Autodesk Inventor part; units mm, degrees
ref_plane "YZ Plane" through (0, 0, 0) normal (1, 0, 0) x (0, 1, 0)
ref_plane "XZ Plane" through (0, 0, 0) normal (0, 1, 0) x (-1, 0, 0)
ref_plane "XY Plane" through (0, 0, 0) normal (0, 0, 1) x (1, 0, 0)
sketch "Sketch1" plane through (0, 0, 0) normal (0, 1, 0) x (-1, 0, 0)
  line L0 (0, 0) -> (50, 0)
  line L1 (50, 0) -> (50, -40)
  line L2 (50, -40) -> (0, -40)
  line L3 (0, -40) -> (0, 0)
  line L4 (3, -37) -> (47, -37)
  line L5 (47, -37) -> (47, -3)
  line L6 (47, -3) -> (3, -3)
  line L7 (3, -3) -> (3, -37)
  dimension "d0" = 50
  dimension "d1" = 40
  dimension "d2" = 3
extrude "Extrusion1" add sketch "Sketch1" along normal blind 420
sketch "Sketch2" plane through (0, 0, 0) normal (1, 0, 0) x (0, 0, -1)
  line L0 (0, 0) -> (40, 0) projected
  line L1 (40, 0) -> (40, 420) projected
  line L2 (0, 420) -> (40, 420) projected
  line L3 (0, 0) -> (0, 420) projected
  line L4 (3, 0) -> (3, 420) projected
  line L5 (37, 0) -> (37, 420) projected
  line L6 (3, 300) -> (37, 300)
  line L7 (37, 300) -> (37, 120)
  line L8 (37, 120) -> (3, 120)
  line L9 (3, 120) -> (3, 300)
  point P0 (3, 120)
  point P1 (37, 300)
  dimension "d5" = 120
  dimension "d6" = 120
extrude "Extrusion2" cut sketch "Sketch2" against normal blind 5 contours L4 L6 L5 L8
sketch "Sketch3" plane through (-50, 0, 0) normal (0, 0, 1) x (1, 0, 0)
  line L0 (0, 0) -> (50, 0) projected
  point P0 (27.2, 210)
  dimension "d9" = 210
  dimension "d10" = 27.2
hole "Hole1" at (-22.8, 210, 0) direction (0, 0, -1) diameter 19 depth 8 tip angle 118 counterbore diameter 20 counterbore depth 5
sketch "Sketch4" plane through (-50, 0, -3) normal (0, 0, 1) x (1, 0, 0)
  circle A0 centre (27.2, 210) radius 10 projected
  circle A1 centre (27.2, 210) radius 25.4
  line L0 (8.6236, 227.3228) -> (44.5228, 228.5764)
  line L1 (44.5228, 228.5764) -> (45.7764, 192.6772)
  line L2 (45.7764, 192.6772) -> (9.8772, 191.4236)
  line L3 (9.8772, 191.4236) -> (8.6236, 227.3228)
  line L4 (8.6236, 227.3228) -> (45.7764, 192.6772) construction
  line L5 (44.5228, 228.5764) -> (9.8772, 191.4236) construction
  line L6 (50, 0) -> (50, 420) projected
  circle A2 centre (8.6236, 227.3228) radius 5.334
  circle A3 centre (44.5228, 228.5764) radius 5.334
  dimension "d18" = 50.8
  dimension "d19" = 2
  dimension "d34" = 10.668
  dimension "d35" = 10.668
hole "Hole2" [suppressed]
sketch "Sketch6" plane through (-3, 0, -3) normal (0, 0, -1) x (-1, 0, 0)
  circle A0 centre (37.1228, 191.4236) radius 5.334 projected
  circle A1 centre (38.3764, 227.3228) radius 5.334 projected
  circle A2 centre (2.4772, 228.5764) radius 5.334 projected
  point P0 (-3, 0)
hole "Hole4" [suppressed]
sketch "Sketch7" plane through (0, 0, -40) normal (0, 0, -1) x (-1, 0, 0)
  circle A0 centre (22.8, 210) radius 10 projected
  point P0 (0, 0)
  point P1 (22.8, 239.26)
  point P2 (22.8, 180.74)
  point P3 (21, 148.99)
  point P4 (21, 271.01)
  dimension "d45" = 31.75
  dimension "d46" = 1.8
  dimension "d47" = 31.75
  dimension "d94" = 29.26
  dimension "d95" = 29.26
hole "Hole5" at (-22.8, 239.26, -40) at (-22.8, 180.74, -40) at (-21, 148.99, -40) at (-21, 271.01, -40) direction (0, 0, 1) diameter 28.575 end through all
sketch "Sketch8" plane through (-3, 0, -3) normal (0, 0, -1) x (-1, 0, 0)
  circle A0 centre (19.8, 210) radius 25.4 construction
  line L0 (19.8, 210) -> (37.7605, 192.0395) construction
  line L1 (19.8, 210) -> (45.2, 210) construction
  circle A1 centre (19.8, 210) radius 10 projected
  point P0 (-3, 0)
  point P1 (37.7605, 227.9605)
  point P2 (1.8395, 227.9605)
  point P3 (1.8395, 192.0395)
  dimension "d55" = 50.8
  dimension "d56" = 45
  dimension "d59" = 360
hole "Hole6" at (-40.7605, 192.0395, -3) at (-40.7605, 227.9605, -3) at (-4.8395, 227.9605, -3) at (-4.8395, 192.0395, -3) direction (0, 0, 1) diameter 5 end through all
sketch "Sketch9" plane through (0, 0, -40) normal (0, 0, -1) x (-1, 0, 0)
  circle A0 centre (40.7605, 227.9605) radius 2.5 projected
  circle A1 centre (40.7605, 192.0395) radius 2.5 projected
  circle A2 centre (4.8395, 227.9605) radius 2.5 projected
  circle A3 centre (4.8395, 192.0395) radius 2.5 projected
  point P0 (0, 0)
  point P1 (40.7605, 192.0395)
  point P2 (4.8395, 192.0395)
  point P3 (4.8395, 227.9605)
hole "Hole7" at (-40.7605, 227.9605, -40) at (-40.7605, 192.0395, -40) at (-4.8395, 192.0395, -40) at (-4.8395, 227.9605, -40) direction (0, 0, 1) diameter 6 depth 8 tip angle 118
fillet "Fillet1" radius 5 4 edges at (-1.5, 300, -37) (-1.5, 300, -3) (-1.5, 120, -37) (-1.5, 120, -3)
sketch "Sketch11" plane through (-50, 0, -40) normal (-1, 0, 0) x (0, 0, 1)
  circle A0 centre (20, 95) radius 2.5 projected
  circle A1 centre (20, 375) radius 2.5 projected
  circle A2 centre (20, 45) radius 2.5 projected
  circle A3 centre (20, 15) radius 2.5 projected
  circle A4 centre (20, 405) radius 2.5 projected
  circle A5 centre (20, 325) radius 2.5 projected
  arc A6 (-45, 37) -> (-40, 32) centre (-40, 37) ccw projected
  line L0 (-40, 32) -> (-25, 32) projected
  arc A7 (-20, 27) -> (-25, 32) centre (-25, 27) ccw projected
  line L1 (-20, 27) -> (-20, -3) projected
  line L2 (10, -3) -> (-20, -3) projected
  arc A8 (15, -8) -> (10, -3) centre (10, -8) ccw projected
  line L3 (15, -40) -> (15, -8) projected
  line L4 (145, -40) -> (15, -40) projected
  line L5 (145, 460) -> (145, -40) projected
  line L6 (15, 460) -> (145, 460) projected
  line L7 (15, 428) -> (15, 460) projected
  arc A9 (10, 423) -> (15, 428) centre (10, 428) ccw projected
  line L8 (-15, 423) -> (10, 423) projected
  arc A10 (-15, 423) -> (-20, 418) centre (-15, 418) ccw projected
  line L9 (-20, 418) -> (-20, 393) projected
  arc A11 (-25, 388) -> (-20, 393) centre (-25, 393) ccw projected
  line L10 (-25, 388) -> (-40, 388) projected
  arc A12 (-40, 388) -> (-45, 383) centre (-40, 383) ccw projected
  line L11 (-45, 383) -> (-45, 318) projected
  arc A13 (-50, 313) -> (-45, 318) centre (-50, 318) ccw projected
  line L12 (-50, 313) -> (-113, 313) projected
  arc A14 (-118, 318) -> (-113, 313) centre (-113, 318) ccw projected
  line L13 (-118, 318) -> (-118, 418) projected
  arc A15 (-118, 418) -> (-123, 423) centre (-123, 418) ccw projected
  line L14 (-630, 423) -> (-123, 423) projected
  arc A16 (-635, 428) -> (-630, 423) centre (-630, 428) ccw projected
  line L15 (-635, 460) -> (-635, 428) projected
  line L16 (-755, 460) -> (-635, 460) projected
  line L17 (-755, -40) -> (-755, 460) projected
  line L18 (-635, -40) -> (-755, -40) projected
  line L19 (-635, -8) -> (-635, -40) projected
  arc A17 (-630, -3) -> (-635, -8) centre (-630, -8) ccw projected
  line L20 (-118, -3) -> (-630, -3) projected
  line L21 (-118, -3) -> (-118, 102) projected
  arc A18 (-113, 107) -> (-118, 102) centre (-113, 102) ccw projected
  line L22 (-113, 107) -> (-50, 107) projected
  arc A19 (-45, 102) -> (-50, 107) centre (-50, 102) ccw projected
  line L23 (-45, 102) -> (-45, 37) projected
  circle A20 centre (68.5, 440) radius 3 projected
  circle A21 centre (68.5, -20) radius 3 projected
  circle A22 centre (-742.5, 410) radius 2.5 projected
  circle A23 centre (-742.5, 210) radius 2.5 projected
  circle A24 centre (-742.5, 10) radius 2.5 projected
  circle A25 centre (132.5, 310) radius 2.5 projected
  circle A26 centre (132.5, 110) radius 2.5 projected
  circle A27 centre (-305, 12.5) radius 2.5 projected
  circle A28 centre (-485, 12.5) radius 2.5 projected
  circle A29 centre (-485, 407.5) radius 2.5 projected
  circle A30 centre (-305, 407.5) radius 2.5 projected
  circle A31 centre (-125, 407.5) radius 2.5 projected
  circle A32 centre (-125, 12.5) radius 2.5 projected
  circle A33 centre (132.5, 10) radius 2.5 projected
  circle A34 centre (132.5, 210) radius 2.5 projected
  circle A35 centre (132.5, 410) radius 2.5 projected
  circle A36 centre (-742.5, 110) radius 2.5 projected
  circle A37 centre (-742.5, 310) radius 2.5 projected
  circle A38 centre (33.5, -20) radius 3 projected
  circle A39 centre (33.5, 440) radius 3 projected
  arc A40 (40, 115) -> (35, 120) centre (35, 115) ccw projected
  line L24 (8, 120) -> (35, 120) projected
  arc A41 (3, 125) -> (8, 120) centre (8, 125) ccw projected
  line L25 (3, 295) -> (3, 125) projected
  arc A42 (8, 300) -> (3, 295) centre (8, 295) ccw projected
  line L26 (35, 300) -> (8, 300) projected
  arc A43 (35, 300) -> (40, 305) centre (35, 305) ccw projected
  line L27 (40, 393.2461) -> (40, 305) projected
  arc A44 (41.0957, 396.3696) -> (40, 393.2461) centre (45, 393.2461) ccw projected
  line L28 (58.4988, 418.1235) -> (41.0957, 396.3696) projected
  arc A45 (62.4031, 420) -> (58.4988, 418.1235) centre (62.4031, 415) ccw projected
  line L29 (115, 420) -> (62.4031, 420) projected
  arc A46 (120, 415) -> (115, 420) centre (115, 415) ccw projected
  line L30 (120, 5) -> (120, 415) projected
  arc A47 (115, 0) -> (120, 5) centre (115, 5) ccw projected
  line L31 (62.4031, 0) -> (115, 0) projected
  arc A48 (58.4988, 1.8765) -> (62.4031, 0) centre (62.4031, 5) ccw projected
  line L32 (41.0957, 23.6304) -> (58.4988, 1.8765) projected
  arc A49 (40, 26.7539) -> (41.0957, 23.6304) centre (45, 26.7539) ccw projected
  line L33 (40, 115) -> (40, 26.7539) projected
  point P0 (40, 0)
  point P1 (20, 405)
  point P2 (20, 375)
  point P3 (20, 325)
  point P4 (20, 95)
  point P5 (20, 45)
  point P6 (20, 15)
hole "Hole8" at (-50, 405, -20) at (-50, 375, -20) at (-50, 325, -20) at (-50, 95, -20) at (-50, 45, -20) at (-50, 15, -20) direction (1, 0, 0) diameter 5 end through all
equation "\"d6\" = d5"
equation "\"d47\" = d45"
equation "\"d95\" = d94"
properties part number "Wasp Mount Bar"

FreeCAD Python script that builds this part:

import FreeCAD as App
import Part
import Sketcher
from FreeCAD import Vector
Q = App.Units.Quantity


def edges_at(feature, points):
    """Names of the edges that pass closest to the given points."""
    edges = feature.Shape.Edges
    near = lambda p: min(range(len(edges)), key=lambda i: edges[i].distToShape(Part.Vertex(*p))[0])
    return sorted({f"Edge{near(p) + 1}" for p in points})


def add_polygon(sketch, points):
    """Adds a closed chain of lines whose ends are joined by coincident constraints."""
    first, n = sketch.GeometryCount, len(points)
    for a, b in zip(points, points[1:] + points[:1]):
        sketch.addGeometry(Part.LineSegment(App.Vector(*a, 0), App.Vector(*b, 0)), False)
    for i in range(n):
        sketch.addConstraint(Sketcher.Constraint("Coincident", first + i, 2, first + (i + 1) % n, 1))

doc = App.newDocument("Part")
params = doc.addObject("Spreadsheet::Sheet", "Params")
for row, (alias, value) in enumerate([
    ("sketch1_width", "50 mm"),
    ("sketch1_height", "40 mm"),
    ("pad1_length", "420 mm"),
    ("sketch2_width", "180 mm"),
    ("sketch2_height", "34 mm"),
    ("pocket1_length", "5 mm"),
    ("sketch3_diameter", "19 mm"),
    ("hole_diameter", "19 mm"),
    ("hole_depth", "8 mm"),
    ("hole_cbore_diameter", "20 mm"),
    ("hole_cbore_depth", "5 mm"),
    ("hole2_diameter", "28.575 mm"),
    ("sketch5_diameter", "5 mm"),
    ("hole3_diameter", "5 mm"),
    ("sketch6_diameter", "6 mm"),
    ("hole4_diameter", "6 mm"),
    ("hole4_depth", "8 mm"),
    ("fillet_radius", "5 mm"),
    ("sketch7_diameter", "5 mm"),
    ("hole5_diameter", "5 mm"),
], start=1):
    params.set(f"A{row}", alias)
    params.set(f"B{row}", "=" + value)
    params.setAlias(f"B{row}", alias)

body = doc.addObject("PartDesign::Body", "Body")

# Sketch on XZ plane
sketch1 = body.newObject("Sketcher::SketchObject", "Sketch")
sketch1.AttachmentSupport = (doc.getObject("XZ_Plane"), [""])
sketch1.MapMode = "FlatFace"
add_polygon(sketch1, [(-50, 0), (0, 0), (0, -40), (-50, -40)])  # lines 0-3
add_polygon(sketch1, [(-47, -37), (-3, -37), (-3, -3), (-47, -3)])  # lines 4-7
sketch1.addConstraint(Sketcher.Constraint("Horizontal", 0))
sketch1.addConstraint(Sketcher.Constraint("Vertical", 1))
sketch1.addConstraint(Sketcher.Constraint("Horizontal", 2))
sketch1.addConstraint(Sketcher.Constraint("Vertical", 3))
sketch1.addConstraint(Sketcher.Constraint("Horizontal", 4))
sketch1.addConstraint(Sketcher.Constraint("Vertical", 5))
sketch1.addConstraint(Sketcher.Constraint("Horizontal", 6))
sketch1.addConstraint(Sketcher.Constraint("Vertical", 7))
sketch1.addConstraint(Sketcher.Constraint("Coincident", 0, 2, -1, 1))
sketch1.addConstraint(Sketcher.Constraint("DistanceX", 0, 1, 0, 2, Q("50 mm")))
sketch1.addConstraint(Sketcher.Constraint("DistanceY", 1, 2, 1, 1, Q("40 mm")))
sketch1.addConstraint(Sketcher.Constraint("DistanceX", 4, 2, -1, 1, Q("3 mm")))
sketch1.addConstraint(Sketcher.Constraint("DistanceY", 5, 2, -1, 1, Q("3 mm")))
sketch1.addConstraint(Sketcher.Constraint("DistanceY", 1, 2, 4, 2, Q("3 mm")))
sketch1.addConstraint(Sketcher.Constraint("DistanceX", 3, 2, 6, 2, Q("3 mm")))
sketch1.setExpression("Constraints[17]", "Params.sketch1_width")
sketch1.setExpression("Constraints[18]", "Params.sketch1_height")
pad1 = body.newObject("PartDesign::Pad", "Pad")
pad1.Profile = sketch1
pad1.setExpression("Length", "Params.pad1_length")
pad1.Reversed = True

# Sketch on YZ plane
sketch2 = body.newObject("Sketcher::SketchObject", "Sketch001")
sketch2.AttachmentSupport = (doc.getObject("YZ_Plane"), [""])
sketch2.MapMode = "FlatFace"
add_polygon(sketch2, [(300, -3), (120, -3), (120, -37), (300, -37)])  # lines 0-3
sketch2.addConstraint(Sketcher.Constraint("Horizontal", 0))
sketch2.addConstraint(Sketcher.Constraint("Vertical", 1))
sketch2.addConstraint(Sketcher.Constraint("Horizontal", 2))
sketch2.addConstraint(Sketcher.Constraint("Vertical", 3))
sketch2.addConstraint(Sketcher.Constraint("DistanceX", -1, 1, 0, 2, Q("120 mm")))
sketch2.addConstraint(Sketcher.Constraint("DistanceX", 0, 2, 0, 1, Q("180 mm")))
sketch2.addConstraint(Sketcher.Constraint("DistanceY", 1, 2, 1, 1, Q("34 mm")))
sketch2.addConstraint(Sketcher.Constraint("DistanceY", 0, 2, -1, 1, Q("3 mm")))
sketch2.setExpression("Constraints[9]", "Params.sketch2_width")
sketch2.setExpression("Constraints[10]", "Params.sketch2_height")
pocket1 = body.newObject("PartDesign::Pocket", "Pocket")
pocket1.Profile = sketch2
pocket1.setExpression("Length", "Params.pocket1_length")

# Sketch on XY plane
sketch3 = body.newObject("Sketcher::SketchObject", "Sketch002")
sketch3.AttachmentSupport = (doc.getObject("XY_Plane"), [""])
sketch3.MapMode = "FlatFace"
sketch3.addGeometry(Part.Circle(Vector(-23, 210, 0), Vector(0, 0, 1), 10), False)
sketch3.addConstraint(Sketcher.Constraint("Diameter", 0, Q("19 mm")))
sketch3.addConstraint(Sketcher.Constraint("DistanceY", -1, 1, 0, 3, Q("210 mm")))
sketch3.addConstraint(Sketcher.Constraint("DistanceX", 0, 3, -1, 1, Q("22.8 mm")))
sketch3.setExpression("Constraints[0]", "Params.sketch3_diameter")
doc.recompute()
hole = body.newObject("PartDesign::Hole", "Hole")
hole.Profile = sketch3
hole.ThreadType = "None"
hole.setExpression("Diameter", "Params.hole_diameter")
hole.DepthType = "Dimension"
hole.setExpression("Depth", "Params.hole_depth")
hole.DrillPoint = "Angled"
hole.DrillPointAngle = 118
hole.HoleCutType = "Counterbore"
hole.setExpression("HoleCutDiameter", "Params.hole_cbore_diameter")
hole.setExpression("HoleCutDepth", "Params.hole_cbore_depth")

# Sketch on XY plane
sketch4 = body.newObject("Sketcher::SketchObject", "Sketch003")
sketch4.AttachmentSupport = (doc.getObject("XY_Plane"), [""])
sketch4.MapMode = "FlatFace"
sketch4.AttachmentOffset = App.Placement(Vector(0, 0, -40), App.Rotation())
sketch4.addGeometry(Part.Circle(Vector(-23, 239, 0), Vector(0, 0, 1), 14), False)
sketch4.addGeometry(Part.Circle(Vector(-23, 181, 0), Vector(0, 0, 1), 14), False)
sketch4.addGeometry(Part.Circle(Vector(-21, 149, 0), Vector(0, 0, 1), 14), False)
sketch4.addGeometry(Part.Circle(Vector(-21, 271, 0), Vector(0, 0, 1), 14), False)
sketch4.addConstraint(Sketcher.Constraint("Equal", 0, 1))
sketch4.addConstraint(Sketcher.Constraint("Equal", 1, 2))
sketch4.addConstraint(Sketcher.Constraint("Equal", 2, 3))
sketch4.addConstraint(Sketcher.Constraint("Vertical", 0, 3, 1, 3))
sketch4.addConstraint(Sketcher.Constraint("Vertical", 2, 3, 3, 3))
sketch4.addConstraint(Sketcher.Constraint("Diameter", 0, Q("28.575 mm")))
sketch4.addConstraint(Sketcher.Constraint("DistanceX", 2, 3, -1, 1, Q("21 mm")))
sketch4.addConstraint(Sketcher.Constraint("DistanceX", 0, 3, -1, 1, Q("22.8 mm")))
sketch4.addConstraint(Sketcher.Constraint("DistanceY", -1, 1, 0, 3, Q("239.26 mm")))
sketch4.addConstraint(Sketcher.Constraint("DistanceY", -1, 1, 1, 3, Q("180.74 mm")))
sketch4.addConstraint(Sketcher.Constraint("DistanceY", -1, 1, 2, 3, Q("148.99 mm")))
sketch4.addConstraint(Sketcher.Constraint("DistanceY", -1, 1, 3, 3, Q("271.01 mm")))
doc.recompute()
hole2 = body.newObject("PartDesign::Hole", "Hole001")
hole2.Profile = sketch4
hole2.ThreadType = "None"
hole2.setExpression("Diameter", "Params.hole2_diameter")
hole2.DepthType = "ThroughAll"
hole2.Reversed = True

# Sketch on XY plane
sketch5 = body.newObject("Sketcher::SketchObject", "Sketch004")
sketch5.AttachmentSupport = (doc.getObject("XY_Plane"), [""])
sketch5.MapMode = "FlatFace"
sketch5.AttachmentOffset = App.Placement(Vector(0, 0, -3), App.Rotation())
sketch5.addGeometry(Part.Circle(Vector(-40.8, 192, 0), Vector(0, 0, 1), 2.5), False)
sketch5.addGeometry(Part.Circle(Vector(-40.8, 228, 0), Vector(0, 0, 1), 2.5), False)
sketch5.addGeometry(Part.Circle(Vector(-4.8, 228, 0), Vector(0, 0, 1), 2.5), False)
sketch5.addGeometry(Part.Circle(Vector(-4.8, 192, 0), Vector(0, 0, 1), 2.5), False)
sketch5.addConstraint(Sketcher.Constraint("Equal", 0, 1))
sketch5.addConstraint(Sketcher.Constraint("Equal", 1, 2))
sketch5.addConstraint(Sketcher.Constraint("Equal", 2, 3))
sketch5.addConstraint(Sketcher.Constraint("Horizontal", 1, 3, 2, 3))
sketch5.addConstraint(Sketcher.Constraint("Horizontal", 0, 3, 3, 3))
sketch5.addConstraint(Sketcher.Constraint("Vertical", 0, 3, 1, 3))
sketch5.addConstraint(Sketcher.Constraint("Vertical", 2, 3, 3, 3))
sketch5.addConstraint(Sketcher.Constraint("Diameter", 0, Q("5 mm")))
sketch5.addConstraint(Sketcher.Constraint("DistanceY", 0, 3, 1, 3, Q("35.921 mm")))
sketch5.addConstraint(Sketcher.Constraint("DistanceX", 1, 3, 2, 3, Q("35.921 mm")))
sketch5.addConstraint(Sketcher.Constraint("DistanceX", 0, 3, -1, 1, Q("40.7605 mm")))
sketch5.addConstraint(Sketcher.Constraint("DistanceY", -1, 1, 0, 3, Q("192.0395 mm")))
sketch5.setExpression("Constraints[7]", "Params.sketch5_diameter")
doc.recompute()
hole3 = body.newObject("PartDesign::Hole", "Hole002")
hole3.Profile = sketch5
hole3.ThreadType = "None"
hole3.setExpression("Diameter", "Params.hole3_diameter")
hole3.DepthType = "ThroughAll"
hole3.Reversed = True

# Sketch on XY plane
sketch6 = body.newObject("Sketcher::SketchObject", "Sketch005")
sketch6.AttachmentSupport = (doc.getObject("XY_Plane"), [""])
sketch6.MapMode = "FlatFace"
sketch6.AttachmentOffset = App.Placement(Vector(0, 0, -40), App.Rotation())
sketch6.addGeometry(Part.Circle(Vector(-40.8, 228, 0), Vector(0, 0, 1), 3), False)
sketch6.addGeometry(Part.Circle(Vector(-40.8, 192, 0), Vector(0, 0, 1), 3), False)
sketch6.addGeometry(Part.Circle(Vector(-4.8, 192, 0), Vector(0, 0, 1), 3), False)
sketch6.addGeometry(Part.Circle(Vector(-4.8, 228, 0), Vector(0, 0, 1), 3), False)
sketch6.addConstraint(Sketcher.Constraint("Equal", 0, 1))
sketch6.addConstraint(Sketcher.Constraint("Equal", 1, 2))
sketch6.addConstraint(Sketcher.Constraint("Equal", 2, 3))
sketch6.addConstraint(Sketcher.Constraint("Horizontal", 1, 3, 2, 3))
sketch6.addConstraint(Sketcher.Constraint("Horizontal", 0, 3, 3, 3))
sketch6.addConstraint(Sketcher.Constraint("Vertical", 0, 3, 1, 3))
sketch6.addConstraint(Sketcher.Constraint("Vertical", 2, 3, 3, 3))
sketch6.addConstraint(Sketcher.Constraint("Diameter", 0, Q("6 mm")))
sketch6.addConstraint(Sketcher.Constraint("DistanceY", 1, 3, 0, 3, Q("35.921 mm")))
sketch6.addConstraint(Sketcher.Constraint("DistanceX", 1, 3, 2, 3, Q("35.921 mm")))
sketch6.addConstraint(Sketcher.Constraint("DistanceX", 0, 3, -1, 1, Q("40.7605 mm")))
sketch6.addConstraint(Sketcher.Constraint("DistanceY", -1, 1, 0, 3, Q("227.9605 mm")))
sketch6.setExpression("Constraints[7]", "Params.sketch6_diameter")
doc.recompute()
hole4 = body.newObject("PartDesign::Hole", "Hole003")
hole4.Profile = sketch6
hole4.ThreadType = "None"
hole4.setExpression("Diameter", "Params.hole4_diameter")
hole4.DepthType = "Dimension"
hole4.setExpression("Depth", "Params.hole4_depth")
hole4.DrillPoint = "Angled"
hole4.DrillPointAngle = 118
hole4.Reversed = True
doc.recompute()

fillet = body.newObject("PartDesign::Fillet", "Fillet")
fillet.Base = (hole4, edges_at(hole4, [
    (-1.5, 300, -37),
    (-1.5, 300, -3),
    (-1.5, 120, -37),
    (-1.5, 120, -3),
]))
fillet.setExpression("Radius", "Params.fillet_radius")

# Sketch on YZ plane
sketch7 = body.newObject("Sketcher::SketchObject", "Sketch006")
sketch7.AttachmentSupport = (doc.getObject("YZ_Plane"), [""])
sketch7.MapMode = "FlatFace"
sketch7.AttachmentOffset = App.Placement(Vector(0, 0, -50), App.Rotation())
sketch7.addGeometry(Part.Circle(Vector(405, -20, 0), Vector(0, 0, 1), 2.5), False)
sketch7.addGeometry(Part.Circle(Vector(375, -20, 0), Vector(0, 0, 1), 2.5), False)
sketch7.addGeometry(Part.Circle(Vector(325, -20, 0), Vector(0, 0, 1), 2.5), False)
sketch7.addGeometry(Part.Circle(Vector(95, -20, 0), Vector(0, 0, 1), 2.5), False)
sketch7.addGeometry(Part.Circle(Vector(45, -20, 0), Vector(0, 0, 1), 2.5), False)
sketch7.addGeometry(Part.Circle(Vector(15, -20, 0), Vector(0, 0, 1), 2.5), False)
sketch7.addConstraint(Sketcher.Constraint("Equal", 0, 1))
sketch7.addConstraint(Sketcher.Constraint("Equal", 1, 2))
sketch7.addConstraint(Sketcher.Constraint("Equal", 2, 3))
sketch7.addConstraint(Sketcher.Constraint("Equal", 3, 4))
sketch7.addConstraint(Sketcher.Constraint("Equal", 4, 5))
sketch7.addConstraint(Sketcher.Constraint("Horizontal", 0, 3, 1, 3))
sketch7.addConstraint(Sketcher.Constraint("Horizontal", 1, 3, 2, 3))
sketch7.addConstraint(Sketcher.Constraint("Horizontal", 2, 3, 3, 3))
sketch7.addConstraint(Sketcher.Constraint("Horizontal", 3, 3, 4, 3))
sketch7.addConstraint(Sketcher.Constraint("Horizontal", 4, 3, 5, 3))
sketch7.addConstraint(Sketcher.Constraint("Diameter", 0, Q("5 mm")))
sketch7.addConstraint(Sketcher.Constraint("DistanceX", -1, 1, 0, 3, Q("405 mm")))
sketch7.addConstraint(Sketcher.Constraint("DistanceY", 0, 3, -1, 1, Q("20 mm")))
sketch7.addConstraint(Sketcher.Constraint("DistanceX", -1, 1, 1, 3, Q("375 mm")))
sketch7.addConstraint(Sketcher.Constraint("DistanceX", -1, 1, 2, 3, Q("325 mm")))
sketch7.addConstraint(Sketcher.Constraint("DistanceX", -1, 1, 3, 3, Q("95 mm")))
sketch7.addConstraint(Sketcher.Constraint("DistanceX", -1, 1, 4, 3, Q("45 mm")))
sketch7.addConstraint(Sketcher.Constraint("DistanceX", -1, 1, 5, 3, Q("15 mm")))
sketch7.setExpression("Constraints[10]", "Params.sketch7_diameter")
doc.recompute()
hole5 = body.newObject("PartDesign::Hole", "Hole004")
hole5.Profile = sketch7
hole5.ThreadType = "None"
hole5.setExpression("Diameter", "Params.hole5_diameter")
hole5.DepthType = "ThroughAll"
hole5.Reversed = True

doc.recompute()
